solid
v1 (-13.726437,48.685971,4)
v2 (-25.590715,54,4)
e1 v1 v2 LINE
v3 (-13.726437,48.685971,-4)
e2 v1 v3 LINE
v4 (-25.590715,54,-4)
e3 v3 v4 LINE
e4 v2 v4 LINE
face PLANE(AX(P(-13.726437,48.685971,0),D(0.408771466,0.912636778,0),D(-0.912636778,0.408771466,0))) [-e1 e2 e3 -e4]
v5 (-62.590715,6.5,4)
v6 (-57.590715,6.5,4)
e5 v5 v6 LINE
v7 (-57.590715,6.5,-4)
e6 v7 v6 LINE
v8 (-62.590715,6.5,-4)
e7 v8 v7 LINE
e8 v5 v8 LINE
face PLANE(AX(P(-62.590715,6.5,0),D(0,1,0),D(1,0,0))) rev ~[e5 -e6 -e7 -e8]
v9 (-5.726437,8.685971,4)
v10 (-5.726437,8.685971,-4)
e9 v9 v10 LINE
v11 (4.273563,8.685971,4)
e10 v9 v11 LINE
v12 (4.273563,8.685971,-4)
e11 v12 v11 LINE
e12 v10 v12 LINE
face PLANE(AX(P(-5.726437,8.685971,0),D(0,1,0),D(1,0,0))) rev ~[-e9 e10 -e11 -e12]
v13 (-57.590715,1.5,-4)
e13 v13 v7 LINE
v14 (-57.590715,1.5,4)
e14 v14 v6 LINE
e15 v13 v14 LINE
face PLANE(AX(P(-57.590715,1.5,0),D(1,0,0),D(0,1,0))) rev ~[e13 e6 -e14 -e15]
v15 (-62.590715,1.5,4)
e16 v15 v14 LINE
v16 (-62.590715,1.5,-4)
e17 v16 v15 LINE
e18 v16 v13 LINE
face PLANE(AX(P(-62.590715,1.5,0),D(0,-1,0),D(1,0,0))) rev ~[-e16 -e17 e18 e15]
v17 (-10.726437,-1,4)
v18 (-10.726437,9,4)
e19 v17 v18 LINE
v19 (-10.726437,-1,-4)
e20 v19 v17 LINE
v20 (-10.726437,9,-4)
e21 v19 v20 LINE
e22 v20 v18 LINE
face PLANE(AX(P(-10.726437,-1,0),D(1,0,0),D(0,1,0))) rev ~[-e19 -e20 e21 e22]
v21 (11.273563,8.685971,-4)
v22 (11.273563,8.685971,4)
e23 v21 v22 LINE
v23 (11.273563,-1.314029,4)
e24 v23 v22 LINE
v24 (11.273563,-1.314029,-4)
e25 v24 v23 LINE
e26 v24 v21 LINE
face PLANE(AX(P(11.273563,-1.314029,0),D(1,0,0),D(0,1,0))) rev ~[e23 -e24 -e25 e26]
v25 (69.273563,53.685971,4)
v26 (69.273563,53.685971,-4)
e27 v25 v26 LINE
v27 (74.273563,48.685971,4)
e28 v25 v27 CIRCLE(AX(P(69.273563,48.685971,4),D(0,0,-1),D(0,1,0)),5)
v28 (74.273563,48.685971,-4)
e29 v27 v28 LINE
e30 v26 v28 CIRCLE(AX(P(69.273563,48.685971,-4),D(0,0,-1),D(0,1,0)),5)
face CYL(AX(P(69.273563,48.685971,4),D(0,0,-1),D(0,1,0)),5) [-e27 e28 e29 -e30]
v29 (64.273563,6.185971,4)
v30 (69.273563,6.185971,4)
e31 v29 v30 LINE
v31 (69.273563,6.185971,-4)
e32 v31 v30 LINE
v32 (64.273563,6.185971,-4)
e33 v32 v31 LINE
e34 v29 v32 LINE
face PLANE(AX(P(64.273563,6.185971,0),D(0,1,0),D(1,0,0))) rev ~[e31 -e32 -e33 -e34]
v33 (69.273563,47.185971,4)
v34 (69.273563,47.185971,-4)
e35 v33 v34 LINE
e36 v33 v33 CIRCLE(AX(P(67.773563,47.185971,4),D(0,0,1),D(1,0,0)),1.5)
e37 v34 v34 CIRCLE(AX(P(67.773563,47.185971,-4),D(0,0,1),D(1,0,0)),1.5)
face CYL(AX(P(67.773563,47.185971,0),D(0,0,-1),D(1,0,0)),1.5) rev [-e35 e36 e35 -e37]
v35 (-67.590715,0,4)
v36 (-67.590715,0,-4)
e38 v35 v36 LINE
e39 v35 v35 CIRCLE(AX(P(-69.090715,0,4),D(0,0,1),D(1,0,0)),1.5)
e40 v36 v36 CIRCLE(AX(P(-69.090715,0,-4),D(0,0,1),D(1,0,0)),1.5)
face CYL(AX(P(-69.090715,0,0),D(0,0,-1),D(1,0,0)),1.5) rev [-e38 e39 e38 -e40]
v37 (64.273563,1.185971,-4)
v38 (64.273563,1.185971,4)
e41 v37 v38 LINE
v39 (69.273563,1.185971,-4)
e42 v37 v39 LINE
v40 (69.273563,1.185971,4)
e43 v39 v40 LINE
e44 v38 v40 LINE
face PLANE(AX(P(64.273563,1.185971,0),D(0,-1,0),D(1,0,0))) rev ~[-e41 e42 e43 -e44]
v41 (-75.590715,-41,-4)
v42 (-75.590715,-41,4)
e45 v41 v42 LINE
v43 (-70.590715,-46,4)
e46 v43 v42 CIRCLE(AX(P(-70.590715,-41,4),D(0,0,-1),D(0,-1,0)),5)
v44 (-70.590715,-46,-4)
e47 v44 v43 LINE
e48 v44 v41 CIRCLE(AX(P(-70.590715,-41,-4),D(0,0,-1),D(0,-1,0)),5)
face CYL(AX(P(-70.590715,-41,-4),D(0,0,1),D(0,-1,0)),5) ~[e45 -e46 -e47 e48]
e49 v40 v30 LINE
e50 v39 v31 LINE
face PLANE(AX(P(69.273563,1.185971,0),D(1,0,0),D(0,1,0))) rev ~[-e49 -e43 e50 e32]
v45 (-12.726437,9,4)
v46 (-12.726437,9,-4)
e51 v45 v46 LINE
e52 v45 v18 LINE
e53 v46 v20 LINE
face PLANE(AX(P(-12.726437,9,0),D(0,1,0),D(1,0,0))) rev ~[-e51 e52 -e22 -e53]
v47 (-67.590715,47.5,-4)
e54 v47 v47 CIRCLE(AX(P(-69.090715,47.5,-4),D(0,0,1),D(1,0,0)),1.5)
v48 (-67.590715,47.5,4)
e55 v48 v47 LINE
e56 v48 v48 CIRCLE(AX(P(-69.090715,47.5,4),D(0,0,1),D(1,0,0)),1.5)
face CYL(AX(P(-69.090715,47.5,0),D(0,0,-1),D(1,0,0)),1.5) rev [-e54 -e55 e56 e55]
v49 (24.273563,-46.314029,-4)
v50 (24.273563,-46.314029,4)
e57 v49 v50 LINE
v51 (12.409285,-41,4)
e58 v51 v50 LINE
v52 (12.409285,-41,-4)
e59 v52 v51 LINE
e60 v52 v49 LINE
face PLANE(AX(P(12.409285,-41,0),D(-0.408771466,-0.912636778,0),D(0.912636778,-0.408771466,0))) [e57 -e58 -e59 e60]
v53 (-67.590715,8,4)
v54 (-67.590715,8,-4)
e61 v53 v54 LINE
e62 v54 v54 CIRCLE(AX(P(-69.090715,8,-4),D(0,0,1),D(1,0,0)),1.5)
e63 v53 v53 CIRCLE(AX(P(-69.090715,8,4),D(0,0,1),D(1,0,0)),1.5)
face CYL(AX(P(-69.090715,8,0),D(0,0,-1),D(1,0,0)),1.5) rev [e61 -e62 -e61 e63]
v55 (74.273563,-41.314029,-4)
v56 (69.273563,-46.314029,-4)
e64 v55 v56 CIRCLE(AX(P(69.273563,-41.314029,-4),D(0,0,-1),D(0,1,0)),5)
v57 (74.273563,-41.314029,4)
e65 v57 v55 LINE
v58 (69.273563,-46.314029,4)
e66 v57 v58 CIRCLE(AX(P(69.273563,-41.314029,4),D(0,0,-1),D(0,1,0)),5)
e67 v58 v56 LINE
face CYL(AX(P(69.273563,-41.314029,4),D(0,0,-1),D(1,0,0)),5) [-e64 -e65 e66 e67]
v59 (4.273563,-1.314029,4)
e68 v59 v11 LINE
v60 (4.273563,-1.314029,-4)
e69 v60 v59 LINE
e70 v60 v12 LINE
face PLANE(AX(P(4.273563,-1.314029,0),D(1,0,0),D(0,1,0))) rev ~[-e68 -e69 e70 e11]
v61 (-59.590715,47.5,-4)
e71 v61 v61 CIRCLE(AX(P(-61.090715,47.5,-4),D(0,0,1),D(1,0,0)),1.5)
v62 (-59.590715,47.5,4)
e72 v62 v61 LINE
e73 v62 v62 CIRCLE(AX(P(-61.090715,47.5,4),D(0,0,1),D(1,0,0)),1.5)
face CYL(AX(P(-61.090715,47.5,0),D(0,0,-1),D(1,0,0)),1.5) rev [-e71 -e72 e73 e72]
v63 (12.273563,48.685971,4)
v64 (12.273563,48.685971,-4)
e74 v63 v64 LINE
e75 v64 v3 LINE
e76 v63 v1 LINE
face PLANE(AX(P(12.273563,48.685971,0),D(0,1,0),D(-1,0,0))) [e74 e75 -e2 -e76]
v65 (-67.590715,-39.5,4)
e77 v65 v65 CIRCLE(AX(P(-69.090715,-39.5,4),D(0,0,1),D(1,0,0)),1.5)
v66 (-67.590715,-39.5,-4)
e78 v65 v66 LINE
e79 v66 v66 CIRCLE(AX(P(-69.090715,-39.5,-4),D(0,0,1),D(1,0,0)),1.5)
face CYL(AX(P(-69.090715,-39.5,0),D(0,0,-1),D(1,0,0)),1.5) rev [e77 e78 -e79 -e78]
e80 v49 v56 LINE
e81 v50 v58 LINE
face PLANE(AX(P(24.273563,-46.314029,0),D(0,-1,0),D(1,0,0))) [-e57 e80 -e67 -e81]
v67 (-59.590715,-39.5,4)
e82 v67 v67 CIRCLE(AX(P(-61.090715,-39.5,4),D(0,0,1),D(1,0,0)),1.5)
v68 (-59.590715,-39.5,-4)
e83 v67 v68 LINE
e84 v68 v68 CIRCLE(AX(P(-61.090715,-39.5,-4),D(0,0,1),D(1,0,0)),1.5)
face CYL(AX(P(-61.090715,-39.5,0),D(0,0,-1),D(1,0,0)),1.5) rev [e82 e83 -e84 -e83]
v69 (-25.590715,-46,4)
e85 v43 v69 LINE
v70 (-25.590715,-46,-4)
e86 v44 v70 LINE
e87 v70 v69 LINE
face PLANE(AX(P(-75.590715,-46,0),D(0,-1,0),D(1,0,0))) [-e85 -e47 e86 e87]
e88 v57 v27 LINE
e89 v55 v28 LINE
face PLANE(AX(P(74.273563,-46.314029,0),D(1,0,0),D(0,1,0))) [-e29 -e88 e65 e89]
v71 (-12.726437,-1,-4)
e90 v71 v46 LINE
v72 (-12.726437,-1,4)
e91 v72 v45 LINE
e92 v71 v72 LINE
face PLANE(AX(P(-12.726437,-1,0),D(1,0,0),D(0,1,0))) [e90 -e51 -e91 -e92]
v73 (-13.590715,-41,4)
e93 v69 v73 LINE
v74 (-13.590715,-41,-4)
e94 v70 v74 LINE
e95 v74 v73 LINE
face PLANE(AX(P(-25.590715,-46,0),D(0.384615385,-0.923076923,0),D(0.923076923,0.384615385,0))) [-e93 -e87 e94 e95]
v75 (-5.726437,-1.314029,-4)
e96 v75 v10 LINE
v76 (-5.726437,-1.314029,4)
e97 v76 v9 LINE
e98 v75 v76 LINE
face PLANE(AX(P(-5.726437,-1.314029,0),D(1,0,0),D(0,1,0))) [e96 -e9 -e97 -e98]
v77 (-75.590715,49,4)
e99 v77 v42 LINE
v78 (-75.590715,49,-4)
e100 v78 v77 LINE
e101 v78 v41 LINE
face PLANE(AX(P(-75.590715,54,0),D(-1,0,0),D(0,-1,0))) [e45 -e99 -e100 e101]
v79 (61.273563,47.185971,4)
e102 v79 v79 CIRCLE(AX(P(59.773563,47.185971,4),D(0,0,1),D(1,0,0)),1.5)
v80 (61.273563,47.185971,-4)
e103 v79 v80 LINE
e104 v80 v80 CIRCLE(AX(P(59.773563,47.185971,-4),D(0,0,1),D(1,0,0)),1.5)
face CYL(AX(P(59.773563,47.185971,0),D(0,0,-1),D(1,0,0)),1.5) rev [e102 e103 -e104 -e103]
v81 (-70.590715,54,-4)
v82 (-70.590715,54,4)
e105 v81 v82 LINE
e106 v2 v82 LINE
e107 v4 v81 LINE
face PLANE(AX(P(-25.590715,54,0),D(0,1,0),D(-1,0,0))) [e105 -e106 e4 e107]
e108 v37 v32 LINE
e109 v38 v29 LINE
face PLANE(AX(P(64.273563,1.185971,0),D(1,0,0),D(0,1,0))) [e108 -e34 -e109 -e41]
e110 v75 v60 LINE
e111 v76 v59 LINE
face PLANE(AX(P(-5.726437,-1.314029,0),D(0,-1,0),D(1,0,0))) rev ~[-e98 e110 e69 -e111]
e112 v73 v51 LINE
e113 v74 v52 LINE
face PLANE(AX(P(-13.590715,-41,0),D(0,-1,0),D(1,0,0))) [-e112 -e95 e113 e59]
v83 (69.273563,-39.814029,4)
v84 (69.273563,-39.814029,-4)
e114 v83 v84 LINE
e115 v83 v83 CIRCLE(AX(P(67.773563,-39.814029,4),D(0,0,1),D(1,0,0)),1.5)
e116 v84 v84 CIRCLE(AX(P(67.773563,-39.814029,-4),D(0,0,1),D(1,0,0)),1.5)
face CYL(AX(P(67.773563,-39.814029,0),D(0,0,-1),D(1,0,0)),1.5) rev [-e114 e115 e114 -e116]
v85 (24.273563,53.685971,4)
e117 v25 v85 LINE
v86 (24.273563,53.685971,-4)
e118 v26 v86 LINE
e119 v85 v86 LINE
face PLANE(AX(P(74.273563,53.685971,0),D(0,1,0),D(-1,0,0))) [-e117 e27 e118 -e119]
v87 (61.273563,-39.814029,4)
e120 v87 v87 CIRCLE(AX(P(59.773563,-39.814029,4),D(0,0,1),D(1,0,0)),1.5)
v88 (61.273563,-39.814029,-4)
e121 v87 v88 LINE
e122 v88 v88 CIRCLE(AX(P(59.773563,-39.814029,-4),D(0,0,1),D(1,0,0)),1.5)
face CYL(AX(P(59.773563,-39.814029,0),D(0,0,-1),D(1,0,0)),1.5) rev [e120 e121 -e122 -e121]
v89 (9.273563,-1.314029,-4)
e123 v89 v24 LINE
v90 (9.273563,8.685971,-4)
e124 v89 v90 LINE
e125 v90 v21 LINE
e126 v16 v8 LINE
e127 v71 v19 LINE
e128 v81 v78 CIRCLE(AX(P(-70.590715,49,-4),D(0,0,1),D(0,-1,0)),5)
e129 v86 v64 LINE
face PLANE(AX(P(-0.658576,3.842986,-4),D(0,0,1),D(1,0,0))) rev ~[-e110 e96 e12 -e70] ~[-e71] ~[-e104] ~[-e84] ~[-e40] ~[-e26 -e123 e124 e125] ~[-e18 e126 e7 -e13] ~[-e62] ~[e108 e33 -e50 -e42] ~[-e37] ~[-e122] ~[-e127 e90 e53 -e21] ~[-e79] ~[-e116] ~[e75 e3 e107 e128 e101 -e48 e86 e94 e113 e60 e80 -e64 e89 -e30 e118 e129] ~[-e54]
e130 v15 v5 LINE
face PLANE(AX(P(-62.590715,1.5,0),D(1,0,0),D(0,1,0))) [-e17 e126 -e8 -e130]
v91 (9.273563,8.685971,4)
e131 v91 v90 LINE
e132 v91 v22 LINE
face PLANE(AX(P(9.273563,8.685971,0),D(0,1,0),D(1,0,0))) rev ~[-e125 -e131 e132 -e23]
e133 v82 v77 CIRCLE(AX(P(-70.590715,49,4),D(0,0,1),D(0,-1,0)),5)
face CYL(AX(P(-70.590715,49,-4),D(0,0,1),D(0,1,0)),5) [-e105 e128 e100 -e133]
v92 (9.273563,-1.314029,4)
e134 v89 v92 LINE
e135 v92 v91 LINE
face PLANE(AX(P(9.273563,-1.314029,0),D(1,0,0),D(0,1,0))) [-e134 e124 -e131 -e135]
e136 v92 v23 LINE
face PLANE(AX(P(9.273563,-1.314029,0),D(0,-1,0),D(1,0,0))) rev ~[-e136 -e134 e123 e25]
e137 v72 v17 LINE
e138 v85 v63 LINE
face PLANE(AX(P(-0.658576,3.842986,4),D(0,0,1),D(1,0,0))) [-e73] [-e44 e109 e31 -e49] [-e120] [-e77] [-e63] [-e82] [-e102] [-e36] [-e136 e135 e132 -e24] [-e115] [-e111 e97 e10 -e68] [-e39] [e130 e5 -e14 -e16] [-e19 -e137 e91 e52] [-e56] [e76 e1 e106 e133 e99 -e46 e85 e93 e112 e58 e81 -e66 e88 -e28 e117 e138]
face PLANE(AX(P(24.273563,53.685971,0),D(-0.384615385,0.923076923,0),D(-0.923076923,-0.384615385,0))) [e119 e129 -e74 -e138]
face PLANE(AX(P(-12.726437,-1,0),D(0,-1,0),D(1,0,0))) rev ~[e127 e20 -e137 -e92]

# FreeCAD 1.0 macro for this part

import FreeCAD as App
import Part
import Sketcher
Q = App.Units.Quantity


def edges_at(feature, points):
    """Names of the edges that pass closest to the given points."""
    edges = feature.Shape.Edges
    near = lambda p: min(range(len(edges)), key=lambda i: edges[i].distToShape(Part.Vertex(*p))[0])
    return sorted({f"Edge{near(p) + 1}" for p in points})


def add_polygon(sketch, points):
    """Adds a closed chain of lines whose ends are joined by coincident constraints."""
    first, n = sketch.GeometryCount, len(points)
    for a, b in zip(points, points[1:] + points[:1]):
        sketch.addGeometry(Part.LineSegment(App.Vector(*a, 0), App.Vector(*b, 0)), False)
    for i in range(n):
        sketch.addConstraint(Sketcher.Constraint("Coincident", first + i, 2, first + (i + 1) % n, 1))

doc = App.newDocument("Part")
body = doc.addObject("PartDesign::Body", "Body")

# Sketch on XY plane
sketch1 = body.newObject("Sketcher::SketchObject", "Sketch")
sketch1.AttachmentSupport = (doc.getObject("XY_Plane"), [""])
sketch1.MapMode = "FlatFace"
add_polygon(sketch1, [(-25.590715, 54), (-75.590715, 54), (-75.590715, -46), (-25.590715, -46), (-13.590715, -41), (12.409285, -41), (24.273563, -46.314029), (74.273563, -46.314029), (74.273563, 53.685971), (24.273563, 53.685971), (12.273563, 48.685971), (-13.726437, 48.685971)])  # lines 0-11
sketch1.addGeometry(Part.Circle(App.Vector(-69.090715, -39.5, 0), App.Vector(0, 0, 1), 1.5), False)  # 12
sketch1.addGeometry(Part.Circle(App.Vector(-61.090715, -39.5, 0), App.Vector(0, 0, 1), 1.5), False)  # 13
sketch1.addGeometry(Part.Circle(App.Vector(-69.090715, 0, 0), App.Vector(0, 0, 1), 1.5), False)  # 14
add_polygon(sketch1, [(4.273563, -1.314029), (-5.726437, -1.314029), (-5.726437, 8.685971), (4.273563, 8.685971)])  # lines 15-18
sketch1.addGeometry(Part.Circle(App.Vector(59.773563, -39.814029, 0), App.Vector(0, 0, 1), 1.5), False)  # 19
sketch1.addGeometry(Part.Circle(App.Vector(67.773563, -39.814029, 0), App.Vector(0, 0, 1), 1.5), False)  # 20
add_polygon(sketch1, [(11.273563, -1.314029), (9.273563, -1.314029), (9.273563, 8.685971), (11.273563, 8.685971)])  # lines 21-24
add_polygon(sketch1, [(69.273563, 1.185971), (64.273563, 1.185971), (64.273563, 6.185971), (69.273563, 6.185971)])  # lines 25-28
sketch1.addGeometry(Part.Circle(App.Vector(-69.090715, 8, 0), App.Vector(0, 0, 1), 1.5), False)  # 29
add_polygon(sketch1, [(-57.590715, 1.5), (-62.590715, 1.5), (-62.590715, 6.5), (-57.590715, 6.5)])  # lines 30-33
add_polygon(sketch1, [(-10.726437, -1), (-12.726437, -1), (-12.726437, 9), (-10.726437, 9)])  # lines 34-37
sketch1.addGeometry(Part.Circle(App.Vector(-69.090715, 47.5, 0), App.Vector(0, 0, 1), 1.5), False)  # 38
sketch1.addGeometry(Part.Circle(App.Vector(-61.090715, 47.5, 0), App.Vector(0, 0, 1), 1.5), False)  # 39
sketch1.addGeometry(Part.Circle(App.Vector(59.773563, 47.185971, 0), App.Vector(0, 0, 1), 1.5), False)  # 40
sketch1.addGeometry(Part.Circle(App.Vector(67.773563, 47.185971, 0), App.Vector(0, 0, 1), 1.5), False)  # 41
sketch1.addConstraint([
    Sketcher.Constraint("Horizontal", 0),
    Sketcher.Constraint("Vertical", 1),
    Sketcher.Constraint("Horizontal", 2),
    Sketcher.Constraint("Horizontal", 4),
    Sketcher.Constraint("Horizontal", 6),
    Sketcher.Constraint("Vertical", 7),
    Sketcher.Constraint("Horizontal", 8),
    Sketcher.Constraint("Horizontal", 10),
    Sketcher.Constraint("Horizontal", 15),
    Sketcher.Constraint("Vertical", 16),
    Sketcher.Constraint("Horizontal", 17),
    Sketcher.Constraint("Vertical", 18),
    Sketcher.Constraint("Horizontal", 21),
    Sketcher.Constraint("Vertical", 22),
    Sketcher.Constraint("Horizontal", 23),
    Sketcher.Constraint("Vertical", 24),
    Sketcher.Constraint("Horizontal", 25),
    Sketcher.Constraint("Vertical", 26),
    Sketcher.Constraint("Horizontal", 27),
    Sketcher.Constraint("Vertical", 28),
    Sketcher.Constraint("Horizontal", 30),
    Sketcher.Constraint("Vertical", 31),
    Sketcher.Constraint("Horizontal", 32),
    Sketcher.Constraint("Vertical", 33),
    Sketcher.Constraint("Horizontal", 34),
    Sketcher.Constraint("Vertical", 35),
    Sketcher.Constraint("Horizontal", 36),
    Sketcher.Constraint("Vertical", 37),
    Sketcher.Constraint("Equal", 12, 13),
    Sketcher.Constraint("Equal", 13, 14),
    Sketcher.Constraint("Equal", 14, 19),
    Sketcher.Constraint("Equal", 19, 20),
    Sketcher.Constraint("Equal", 20, 29),
    Sketcher.Constraint("Equal", 29, 38),
    Sketcher.Constraint("Equal", 38, 39),
    Sketcher.Constraint("Equal", 39, 40),
    Sketcher.Constraint("Equal", 40, 41),
    Sketcher.Constraint("PointOnObject", 14, 3, -1),
    Sketcher.Constraint("Parallel", 3, 9),
    Sketcher.Constraint("Parallel", 5, 11),
    Sketcher.Constraint("Horizontal", 12, 3, 13, 3),
    Sketcher.Constraint("Horizontal", 19, 3, 20, 3),
    Sketcher.Constraint("Horizontal", 38, 3, 39, 3),
    Sketcher.Constraint("Horizontal", 40, 3, 41, 3),
    Sketcher.Constraint("Horizontal", 18, 2, 21, 2),
    Sketcher.Constraint("Horizontal", 17, 2, 22, 2),
    Sketcher.Constraint("Vertical", 12, 3, 14, 3),
    Sketcher.Constraint("Vertical", 14, 3, 29, 3),
    Sketcher.Constraint("Vertical", 29, 3, 38, 3),
    Sketcher.Constraint("Vertical", 13, 3, 39, 3),
    Sketcher.Constraint("Vertical", 19, 3, 40, 3),
    Sketcher.Constraint("Vertical", 20, 3, 41, 3),
    Sketcher.Constraint("Vertical", 5, 2, 8, 2),
    Sketcher.Constraint("Vertical", 2, 2, 11, 2),
    Sketcher.Constraint("Equal", 2, 6),
    Sketcher.Constraint("Equal", 4, 10),
    Sketcher.Constraint("Equal", 27, 30),
    Sketcher.Constraint("Equal", 23, 34),
    Sketcher.Constraint("Equal", 1, 7),
    Sketcher.Constraint("Equal", 17, 16),
    Sketcher.Constraint("Equal", 32, 26),
    Sketcher.Constraint("Equal", 28, 31),
    Sketcher.Constraint("Equal", 24, 35),
    Sketcher.Constraint("Equal", 3, 5),
    Sketcher.Constraint("Diameter", 12, Q("3 mm")),
    Sketcher.Constraint("DistanceX", 0, 2, 0, 1, Q("50 mm")),
    Sketcher.Constraint("DistanceX", 4, 1, 4, 2, Q("26 mm")),
    Sketcher.Constraint("DistanceX", 15, 2, 15, 1, Q("10 mm")),
    Sketcher.Constraint("DistanceX", 21, 2, 21, 1, Q("2 mm")),
    Sketcher.Constraint("DistanceX", 25, 2, 25, 1, Q("5 mm")),
    Sketcher.Constraint("DistanceY", 1, 2, 1, 1, Q("100 mm")),
    Sketcher.Constraint("Distance", 3, Q("13 mm")),
    Sketcher.Constraint("DistanceY", -1, 1, 29, 3, Q("8 mm")),
    Sketcher.Constraint("DistanceY", -1, 1, 0, 2, Q("54 mm")),
    Sketcher.Constraint("DistanceY", 3, 2, -1, 1, Q("41 mm")),
    Sketcher.Constraint("DistanceY", 34, 2, -1, 1, Q("1 mm")),
    Sketcher.Constraint("DistanceX", 12, 3, 13, 3, Q("8 mm")),
    Sketcher.Constraint("DistanceX", 19, 3, 20, 3, Q("8 mm")),
    Sketcher.Constraint("DistanceY", 12, 3, 38, 3, Q("87 mm")),
    Sketcher.Constraint("DistanceY", 19, 3, 40, 3, Q("87 mm")),
    Sketcher.Constraint("DistanceX", 10, 2, 15, 2, Q("8 mm")),
    Sketcher.Constraint("DistanceY", 15, 2, 10, 2, Q("50 mm")),
    Sketcher.Constraint("DistanceX", 18, 2, 21, 2, Q("5 mm")),
    Sketcher.Constraint("DistanceY", 20, 3, 25, 2, Q("41 mm")),
    Sketcher.Constraint("DistanceX", 25, 2, 6, 2, Q("10 mm")),
    Sketcher.Constraint("DistanceY", 13, 3, 30, 2, Q("41 mm")),
    Sketcher.Constraint("DistanceX", 34, 2, 15, 2, Q("7 mm")),
    Sketcher.Constraint("DistanceY", 12, 3, -1, 1, Q("39.5 mm")),
    Sketcher.Constraint("DistanceX", 0, 2, 38, 3, Q("6.5 mm")),
    Sketcher.Constraint("DistanceX", 5, 2, 19, 3, Q("35.5 mm")),
    Sketcher.Constraint("DistanceY", 5, 2, 19, 3, Q("6.5 mm")),
    Sketcher.Constraint("DistanceX", 14, 3, 30, 2, Q("6.5 mm")),
    Sketcher.Constraint("DistanceY", 19, 3, -1, 1, Q("39.814029 mm")),
    Sketcher.Constraint("DistanceX", 12, 3, -1, 1, Q("69.090715 mm")),
])
pad1 = body.newObject("PartDesign::Pad", "Pad")
pad1.Profile = sketch1
pad1.Length = 8
pad1.Midplane = True
doc.recompute()

fillet = body.newObject("PartDesign::Fillet", "Fillet")
fillet.Base = (pad1, edges_at(pad1, [
    (-75.591, 54, 0),
    (74.274, 53.686, 0),
    (74.274, -46.314, 0),
    (-75.591, -46, 0),
]))
fillet.Radius = 5

doc.recompute()
